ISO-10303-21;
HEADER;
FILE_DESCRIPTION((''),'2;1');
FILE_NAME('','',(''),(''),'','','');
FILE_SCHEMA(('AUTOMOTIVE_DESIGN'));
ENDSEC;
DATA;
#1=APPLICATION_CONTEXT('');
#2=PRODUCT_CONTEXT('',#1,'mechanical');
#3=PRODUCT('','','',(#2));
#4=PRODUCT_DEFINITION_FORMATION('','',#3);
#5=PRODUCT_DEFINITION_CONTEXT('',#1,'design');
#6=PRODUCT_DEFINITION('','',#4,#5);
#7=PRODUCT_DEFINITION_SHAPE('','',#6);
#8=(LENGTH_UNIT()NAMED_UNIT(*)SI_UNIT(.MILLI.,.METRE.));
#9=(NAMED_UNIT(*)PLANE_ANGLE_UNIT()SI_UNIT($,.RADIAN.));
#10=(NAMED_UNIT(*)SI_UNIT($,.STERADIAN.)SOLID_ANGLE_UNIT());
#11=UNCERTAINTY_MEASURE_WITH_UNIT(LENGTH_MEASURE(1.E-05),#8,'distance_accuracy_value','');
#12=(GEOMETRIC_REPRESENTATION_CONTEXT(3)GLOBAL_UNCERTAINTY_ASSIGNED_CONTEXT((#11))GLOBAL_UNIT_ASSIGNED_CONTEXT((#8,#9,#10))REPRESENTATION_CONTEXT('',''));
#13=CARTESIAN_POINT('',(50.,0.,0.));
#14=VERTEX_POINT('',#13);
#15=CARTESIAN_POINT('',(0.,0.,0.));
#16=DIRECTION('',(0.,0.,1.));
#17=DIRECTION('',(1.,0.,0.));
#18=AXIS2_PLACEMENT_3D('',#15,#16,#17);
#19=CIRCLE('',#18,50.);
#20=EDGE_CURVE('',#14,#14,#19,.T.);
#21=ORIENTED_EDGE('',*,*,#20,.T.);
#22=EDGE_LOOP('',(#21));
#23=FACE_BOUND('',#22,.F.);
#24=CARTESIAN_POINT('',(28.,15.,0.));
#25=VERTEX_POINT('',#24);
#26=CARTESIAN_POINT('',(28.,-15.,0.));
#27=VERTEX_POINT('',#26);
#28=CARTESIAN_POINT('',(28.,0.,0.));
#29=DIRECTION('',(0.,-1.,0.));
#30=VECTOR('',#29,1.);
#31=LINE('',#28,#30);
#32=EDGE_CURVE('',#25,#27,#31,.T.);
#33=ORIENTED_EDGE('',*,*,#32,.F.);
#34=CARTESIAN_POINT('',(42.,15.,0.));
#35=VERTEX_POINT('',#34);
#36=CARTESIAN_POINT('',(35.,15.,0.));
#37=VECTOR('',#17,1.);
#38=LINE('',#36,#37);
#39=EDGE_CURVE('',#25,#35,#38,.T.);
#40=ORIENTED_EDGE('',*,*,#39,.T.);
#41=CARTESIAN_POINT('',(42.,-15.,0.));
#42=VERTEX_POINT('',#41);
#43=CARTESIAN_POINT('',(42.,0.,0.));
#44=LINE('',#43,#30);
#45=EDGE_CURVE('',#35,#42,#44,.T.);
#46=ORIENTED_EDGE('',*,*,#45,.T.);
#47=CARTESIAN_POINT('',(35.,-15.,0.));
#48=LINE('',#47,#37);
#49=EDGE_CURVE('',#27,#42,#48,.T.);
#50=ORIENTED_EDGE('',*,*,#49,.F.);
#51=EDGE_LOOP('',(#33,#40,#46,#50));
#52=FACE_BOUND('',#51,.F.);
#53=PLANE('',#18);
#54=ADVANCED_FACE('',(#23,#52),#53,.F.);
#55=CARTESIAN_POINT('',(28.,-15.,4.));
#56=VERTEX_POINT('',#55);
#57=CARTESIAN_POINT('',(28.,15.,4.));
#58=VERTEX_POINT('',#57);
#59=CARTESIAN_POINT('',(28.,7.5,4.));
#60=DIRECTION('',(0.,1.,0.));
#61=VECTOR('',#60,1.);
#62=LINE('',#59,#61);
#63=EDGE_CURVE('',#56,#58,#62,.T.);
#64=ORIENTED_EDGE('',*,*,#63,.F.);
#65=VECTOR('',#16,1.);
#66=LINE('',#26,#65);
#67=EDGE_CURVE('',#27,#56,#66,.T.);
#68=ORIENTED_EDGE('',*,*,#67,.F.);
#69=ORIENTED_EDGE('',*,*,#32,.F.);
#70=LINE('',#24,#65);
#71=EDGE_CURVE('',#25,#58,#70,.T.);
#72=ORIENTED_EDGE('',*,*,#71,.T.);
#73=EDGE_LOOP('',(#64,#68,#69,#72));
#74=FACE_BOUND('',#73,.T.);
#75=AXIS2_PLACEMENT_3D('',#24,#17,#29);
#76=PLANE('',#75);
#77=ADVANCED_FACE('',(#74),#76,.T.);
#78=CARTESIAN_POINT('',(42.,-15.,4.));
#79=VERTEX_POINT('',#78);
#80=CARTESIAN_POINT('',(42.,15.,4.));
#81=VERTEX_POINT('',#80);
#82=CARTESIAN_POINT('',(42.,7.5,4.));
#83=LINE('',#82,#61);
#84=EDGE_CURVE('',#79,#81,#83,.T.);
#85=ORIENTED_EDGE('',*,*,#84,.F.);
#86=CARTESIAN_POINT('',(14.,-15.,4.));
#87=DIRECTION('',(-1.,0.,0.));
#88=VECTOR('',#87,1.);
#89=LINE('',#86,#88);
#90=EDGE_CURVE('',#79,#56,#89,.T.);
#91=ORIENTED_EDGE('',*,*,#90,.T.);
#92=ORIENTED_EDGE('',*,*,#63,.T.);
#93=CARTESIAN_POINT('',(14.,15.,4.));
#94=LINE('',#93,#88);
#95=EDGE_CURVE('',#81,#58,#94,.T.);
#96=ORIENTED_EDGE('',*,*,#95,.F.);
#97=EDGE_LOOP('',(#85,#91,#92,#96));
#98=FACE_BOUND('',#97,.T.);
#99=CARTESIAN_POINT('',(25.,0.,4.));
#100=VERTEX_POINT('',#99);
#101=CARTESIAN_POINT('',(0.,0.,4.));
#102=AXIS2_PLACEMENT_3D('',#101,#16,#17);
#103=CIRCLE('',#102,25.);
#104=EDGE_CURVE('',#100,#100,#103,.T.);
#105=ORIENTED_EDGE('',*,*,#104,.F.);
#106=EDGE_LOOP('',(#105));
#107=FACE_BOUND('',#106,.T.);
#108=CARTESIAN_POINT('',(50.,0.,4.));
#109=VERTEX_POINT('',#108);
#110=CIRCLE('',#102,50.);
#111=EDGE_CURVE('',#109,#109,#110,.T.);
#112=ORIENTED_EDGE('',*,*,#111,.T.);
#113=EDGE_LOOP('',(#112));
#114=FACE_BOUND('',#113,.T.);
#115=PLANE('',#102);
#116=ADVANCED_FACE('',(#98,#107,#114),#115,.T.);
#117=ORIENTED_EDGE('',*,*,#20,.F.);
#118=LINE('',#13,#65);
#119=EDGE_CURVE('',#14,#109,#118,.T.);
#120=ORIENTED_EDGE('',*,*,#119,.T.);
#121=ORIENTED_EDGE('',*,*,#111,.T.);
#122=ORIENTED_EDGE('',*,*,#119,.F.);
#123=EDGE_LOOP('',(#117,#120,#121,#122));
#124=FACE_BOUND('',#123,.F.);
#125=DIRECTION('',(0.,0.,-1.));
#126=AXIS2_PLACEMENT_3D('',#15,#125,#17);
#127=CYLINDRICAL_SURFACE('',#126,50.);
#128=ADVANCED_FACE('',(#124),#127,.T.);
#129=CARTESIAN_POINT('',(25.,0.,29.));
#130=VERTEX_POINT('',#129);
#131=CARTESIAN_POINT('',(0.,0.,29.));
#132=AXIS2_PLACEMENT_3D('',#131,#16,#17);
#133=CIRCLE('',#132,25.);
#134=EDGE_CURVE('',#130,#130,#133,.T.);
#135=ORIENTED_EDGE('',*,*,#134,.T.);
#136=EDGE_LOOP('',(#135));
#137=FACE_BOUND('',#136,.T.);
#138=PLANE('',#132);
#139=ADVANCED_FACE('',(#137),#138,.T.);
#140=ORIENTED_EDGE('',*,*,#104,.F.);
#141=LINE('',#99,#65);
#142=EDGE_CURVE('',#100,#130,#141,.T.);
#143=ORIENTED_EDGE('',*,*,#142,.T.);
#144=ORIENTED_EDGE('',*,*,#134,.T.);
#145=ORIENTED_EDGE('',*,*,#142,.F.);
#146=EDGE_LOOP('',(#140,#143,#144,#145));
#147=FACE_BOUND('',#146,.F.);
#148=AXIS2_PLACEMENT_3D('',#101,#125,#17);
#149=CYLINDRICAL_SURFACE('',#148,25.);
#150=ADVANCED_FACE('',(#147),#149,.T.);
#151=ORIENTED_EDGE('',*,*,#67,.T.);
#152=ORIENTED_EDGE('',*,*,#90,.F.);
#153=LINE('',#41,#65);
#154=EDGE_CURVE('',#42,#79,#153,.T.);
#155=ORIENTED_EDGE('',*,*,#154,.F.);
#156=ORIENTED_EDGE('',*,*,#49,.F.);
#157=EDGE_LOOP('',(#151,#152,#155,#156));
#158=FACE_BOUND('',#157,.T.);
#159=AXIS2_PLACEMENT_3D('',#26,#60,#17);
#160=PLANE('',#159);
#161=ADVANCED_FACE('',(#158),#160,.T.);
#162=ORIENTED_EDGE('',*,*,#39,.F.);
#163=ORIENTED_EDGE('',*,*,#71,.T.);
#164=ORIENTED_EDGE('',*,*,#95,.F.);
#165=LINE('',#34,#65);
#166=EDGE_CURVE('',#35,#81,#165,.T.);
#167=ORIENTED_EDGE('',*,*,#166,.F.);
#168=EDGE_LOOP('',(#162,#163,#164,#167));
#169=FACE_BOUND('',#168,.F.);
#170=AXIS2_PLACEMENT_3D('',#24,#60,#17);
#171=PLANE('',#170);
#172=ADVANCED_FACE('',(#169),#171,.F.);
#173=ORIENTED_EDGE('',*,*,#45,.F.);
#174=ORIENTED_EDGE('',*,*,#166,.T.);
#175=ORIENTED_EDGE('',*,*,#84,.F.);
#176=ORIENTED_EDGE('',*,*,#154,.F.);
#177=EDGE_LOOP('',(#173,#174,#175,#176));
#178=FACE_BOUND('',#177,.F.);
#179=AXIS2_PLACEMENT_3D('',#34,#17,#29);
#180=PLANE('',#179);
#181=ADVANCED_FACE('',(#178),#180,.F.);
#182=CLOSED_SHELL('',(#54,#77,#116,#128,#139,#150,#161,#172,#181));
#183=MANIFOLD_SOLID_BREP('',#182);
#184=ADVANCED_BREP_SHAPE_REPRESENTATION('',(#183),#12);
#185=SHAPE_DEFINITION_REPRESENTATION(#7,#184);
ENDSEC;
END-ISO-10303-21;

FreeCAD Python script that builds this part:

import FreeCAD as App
import Part
import Sketcher


def add_polygon(sketch, points):
    """Adds a closed chain of lines whose ends are joined by coincident constraints."""
    first, n = sketch.GeometryCount, len(points)
    for a, b in zip(points, points[1:] + points[:1]):
        sketch.addGeometry(Part.LineSegment(App.Vector(*a, 0), App.Vector(*b, 0)), False)
    for i in range(n):
        sketch.addConstraint(Sketcher.Constraint("Coincident", first + i, 2, first + (i + 1) % n, 1))

doc = App.newDocument("Part")
body = doc.addObject("PartDesign::Body", "Body")

# Sketch on XY plane
sketch1 = doc.addObject("Sketcher::SketchObject", "Sketch")
body.addObject(sketch1)
sketch1.AttachmentSupport = (doc.XY_Plane, [""])
sketch1.MapMode = "FlatFace"
sketch1.addGeometry(Part.Circle(App.Vector(0, 0, 0), App.Vector(0, 0, 1), 50), False)
sketch1.addConstraint(Sketcher.Constraint("Coincident", 0, 3, -1, 1))
sketch1.addConstraint(Sketcher.Constraint("Diameter", 0, 100.0))
pad1 = doc.addObject("PartDesign::Pad", "Pad")
body.addObject(pad1)
pad1.Profile = sketch1
pad1.Length = 4

# Sketch on XY plane
sketch2 = doc.addObject("Sketcher::SketchObject", "Sketch001")
body.addObject(sketch2)
sketch2.AttachmentSupport = (doc.XY_Plane, [""])
sketch2.MapMode = "FlatFace"
sketch2.AttachmentOffset = App.Placement(App.Vector(0, 0, 4), App.Rotation())
sketch2.addGeometry(Part.Circle(App.Vector(0, 0, 0), App.Vector(0, 0, 1), 25), False)
sketch2.addConstraint(Sketcher.Constraint("Coincident", 0, 3, -1, 1))
sketch2.addConstraint(Sketcher.Constraint("Diameter", 0, 50.0))
pad2 = doc.addObject("PartDesign::Pad", "Pad001")
body.addObject(pad2)
pad2.Profile = sketch2
pad2.Length = 25

# Sketch on XY plane
sketch3 = doc.addObject("Sketcher::SketchObject", "Sketch002")
body.addObject(sketch3)
sketch3.AttachmentSupport = (doc.XY_Plane, [""])
sketch3.MapMode = "FlatFace"
add_polygon(sketch3, [(28, -15), (28, 15), (42, 15), (42, -15)])  # lines 0-3
sketch3.addConstraint(Sketcher.Constraint("Vertical", 0))
sketch3.addConstraint(Sketcher.Constraint("Horizontal", 1))
sketch3.addConstraint(Sketcher.Constraint("Vertical", 2))
sketch3.addConstraint(Sketcher.Constraint("Horizontal", 3))
sketch3.addConstraint(Sketcher.Constraint("DistanceX", 1, 1, 1, 2, 14.0))
sketch3.addConstraint(Sketcher.Constraint("DistanceY", 0, 1, 0, 2, 30.0))
sketch3.addConstraint(Sketcher.Constraint("DistanceX", -1, 1, 0, 2, 28.0))
sketch3.addConstraint(Sketcher.Constraint("DistanceY", -1, 1, 0, 2, 15.0))
pocket1 = doc.addObject("PartDesign::Pocket", "Pocket")
body.addObject(pocket1)
pocket1.Profile = sketch3
pocket1.Length = 5
pocket1.Reversed = True

doc.recompute()
